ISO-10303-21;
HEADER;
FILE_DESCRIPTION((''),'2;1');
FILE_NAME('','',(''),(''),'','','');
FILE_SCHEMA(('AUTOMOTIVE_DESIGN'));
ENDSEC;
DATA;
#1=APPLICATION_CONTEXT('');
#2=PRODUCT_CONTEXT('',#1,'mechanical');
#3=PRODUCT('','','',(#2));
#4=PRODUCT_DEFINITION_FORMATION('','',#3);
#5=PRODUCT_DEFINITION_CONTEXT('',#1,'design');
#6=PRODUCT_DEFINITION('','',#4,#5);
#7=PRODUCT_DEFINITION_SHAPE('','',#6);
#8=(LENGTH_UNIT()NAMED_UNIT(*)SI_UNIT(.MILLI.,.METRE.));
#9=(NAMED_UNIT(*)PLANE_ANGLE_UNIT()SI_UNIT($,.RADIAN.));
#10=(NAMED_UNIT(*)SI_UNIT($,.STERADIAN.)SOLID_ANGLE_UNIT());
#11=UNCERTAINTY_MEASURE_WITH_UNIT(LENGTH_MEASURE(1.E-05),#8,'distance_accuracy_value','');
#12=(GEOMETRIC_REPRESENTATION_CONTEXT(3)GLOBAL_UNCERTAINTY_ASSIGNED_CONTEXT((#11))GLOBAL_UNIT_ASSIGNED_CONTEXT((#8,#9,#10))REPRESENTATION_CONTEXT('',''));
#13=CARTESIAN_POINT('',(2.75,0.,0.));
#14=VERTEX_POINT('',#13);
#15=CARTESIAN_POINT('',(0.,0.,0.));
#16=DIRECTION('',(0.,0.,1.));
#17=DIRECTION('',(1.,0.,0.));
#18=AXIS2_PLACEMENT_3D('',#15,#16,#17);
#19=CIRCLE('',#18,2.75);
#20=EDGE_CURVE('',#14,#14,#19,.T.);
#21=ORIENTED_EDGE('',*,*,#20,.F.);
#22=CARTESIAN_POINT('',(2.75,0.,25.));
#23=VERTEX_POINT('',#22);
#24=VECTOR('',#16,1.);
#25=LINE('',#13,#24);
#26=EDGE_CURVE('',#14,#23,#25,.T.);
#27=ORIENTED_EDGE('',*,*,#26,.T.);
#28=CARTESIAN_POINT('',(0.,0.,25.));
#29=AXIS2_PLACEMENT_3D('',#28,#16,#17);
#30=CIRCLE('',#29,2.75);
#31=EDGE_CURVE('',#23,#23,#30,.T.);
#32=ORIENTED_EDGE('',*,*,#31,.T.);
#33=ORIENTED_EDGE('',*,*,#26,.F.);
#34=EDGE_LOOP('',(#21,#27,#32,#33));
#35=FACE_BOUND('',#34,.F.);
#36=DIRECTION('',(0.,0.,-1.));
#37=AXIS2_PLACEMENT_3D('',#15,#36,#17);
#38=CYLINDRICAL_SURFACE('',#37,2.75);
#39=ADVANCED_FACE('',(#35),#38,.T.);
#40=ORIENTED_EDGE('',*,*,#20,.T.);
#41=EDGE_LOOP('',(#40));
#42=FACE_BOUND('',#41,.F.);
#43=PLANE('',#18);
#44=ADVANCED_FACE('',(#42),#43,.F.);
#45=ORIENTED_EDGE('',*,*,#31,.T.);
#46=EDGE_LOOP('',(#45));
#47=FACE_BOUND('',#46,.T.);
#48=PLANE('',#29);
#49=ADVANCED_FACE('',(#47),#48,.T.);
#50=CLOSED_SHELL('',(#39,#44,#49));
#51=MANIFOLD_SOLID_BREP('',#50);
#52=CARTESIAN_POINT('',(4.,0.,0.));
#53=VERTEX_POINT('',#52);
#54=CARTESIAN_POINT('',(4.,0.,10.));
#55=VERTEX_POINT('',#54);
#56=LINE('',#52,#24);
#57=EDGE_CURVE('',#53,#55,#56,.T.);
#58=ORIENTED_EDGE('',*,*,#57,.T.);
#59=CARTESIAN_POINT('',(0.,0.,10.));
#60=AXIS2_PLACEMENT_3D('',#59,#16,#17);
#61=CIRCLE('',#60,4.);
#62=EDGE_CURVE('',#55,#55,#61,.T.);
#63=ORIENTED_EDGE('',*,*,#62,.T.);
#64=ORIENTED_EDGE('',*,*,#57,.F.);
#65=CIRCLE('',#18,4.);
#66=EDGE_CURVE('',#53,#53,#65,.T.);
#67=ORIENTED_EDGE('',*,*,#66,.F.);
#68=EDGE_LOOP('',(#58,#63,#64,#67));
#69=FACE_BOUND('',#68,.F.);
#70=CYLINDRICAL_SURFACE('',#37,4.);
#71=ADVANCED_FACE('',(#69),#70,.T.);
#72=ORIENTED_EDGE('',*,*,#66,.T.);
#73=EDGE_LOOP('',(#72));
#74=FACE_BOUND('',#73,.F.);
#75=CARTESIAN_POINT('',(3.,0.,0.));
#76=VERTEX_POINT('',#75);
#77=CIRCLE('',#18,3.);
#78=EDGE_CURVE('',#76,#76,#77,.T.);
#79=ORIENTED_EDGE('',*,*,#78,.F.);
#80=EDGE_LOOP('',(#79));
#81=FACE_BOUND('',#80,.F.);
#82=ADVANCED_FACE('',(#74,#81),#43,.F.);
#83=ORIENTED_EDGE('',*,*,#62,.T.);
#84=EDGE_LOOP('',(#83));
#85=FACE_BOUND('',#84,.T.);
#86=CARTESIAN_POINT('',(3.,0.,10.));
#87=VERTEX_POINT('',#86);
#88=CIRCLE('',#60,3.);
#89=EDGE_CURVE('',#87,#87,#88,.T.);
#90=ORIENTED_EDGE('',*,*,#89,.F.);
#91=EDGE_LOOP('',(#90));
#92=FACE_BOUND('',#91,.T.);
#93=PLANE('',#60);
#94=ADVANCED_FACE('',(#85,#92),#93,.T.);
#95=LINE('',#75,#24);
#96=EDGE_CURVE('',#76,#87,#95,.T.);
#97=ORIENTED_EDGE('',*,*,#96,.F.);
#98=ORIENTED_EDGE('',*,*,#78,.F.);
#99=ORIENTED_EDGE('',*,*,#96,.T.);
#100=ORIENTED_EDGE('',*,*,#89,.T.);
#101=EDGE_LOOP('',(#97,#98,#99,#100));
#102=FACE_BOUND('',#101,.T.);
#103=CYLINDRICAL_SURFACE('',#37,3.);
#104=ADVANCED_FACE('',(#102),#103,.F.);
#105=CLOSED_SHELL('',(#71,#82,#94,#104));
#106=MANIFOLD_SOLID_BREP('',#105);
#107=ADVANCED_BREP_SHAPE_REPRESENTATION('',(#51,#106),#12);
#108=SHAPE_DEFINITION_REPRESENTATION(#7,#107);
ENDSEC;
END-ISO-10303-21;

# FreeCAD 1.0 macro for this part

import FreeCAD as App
import Part
import Sketcher

doc = App.newDocument("Part")
body = doc.addObject("PartDesign::Body", "Body")

# Sketch on XY plane
sketch1 = body.newObject("Sketcher::SketchObject", "Sketch")
sketch1.AttachmentSupport = (doc.getObject("XY_Plane"), [""])
sketch1.MapMode = "FlatFace"
sketch1.addGeometry(Part.Circle(App.Vector(0, 0, 0), App.Vector(0, 0, 1), 4), False)
sketch1.addGeometry(Part.Circle(App.Vector(0, 0, 0), App.Vector(0, 0, 1), 3), False)
sketch1.addConstraint(Sketcher.Constraint("Coincident", 0, 3, -1, 1))
sketch1.addConstraint(Sketcher.Constraint("Coincident", 1, 3, -1, 1))
sketch1.addConstraint(Sketcher.Constraint("Diameter", 0, 8.0))
sketch1.addConstraint(Sketcher.Constraint("Diameter", 1, 6.0))
pad1 = body.newObject("PartDesign::Pad", "Pad")
pad1.Profile = sketch1
pad1.Length = 10
body2 = doc.addObject("PartDesign::Body", "Body001")

# Sketch on XY plane
sketch2 = body2.newObject("Sketcher::SketchObject", "Sketch001")
sketch2.AttachmentSupport = (doc.getObject("XY_Plane001"), [""])
sketch2.MapMode = "FlatFace"
sketch2.addGeometry(Part.Circle(App.Vector(0, 0, 0), App.Vector(0, 0, 1), 2.75), False)
sketch2.addConstraint(Sketcher.Constraint("Coincident", 0, 3, -1, 1))
sketch2.addConstraint(Sketcher.Constraint("Diameter", 0, 5.5))
pad2 = body2.newObject("PartDesign::Pad", "Pad001")
pad2.Profile = sketch2
pad2.Length = 25

doc.recompute()
